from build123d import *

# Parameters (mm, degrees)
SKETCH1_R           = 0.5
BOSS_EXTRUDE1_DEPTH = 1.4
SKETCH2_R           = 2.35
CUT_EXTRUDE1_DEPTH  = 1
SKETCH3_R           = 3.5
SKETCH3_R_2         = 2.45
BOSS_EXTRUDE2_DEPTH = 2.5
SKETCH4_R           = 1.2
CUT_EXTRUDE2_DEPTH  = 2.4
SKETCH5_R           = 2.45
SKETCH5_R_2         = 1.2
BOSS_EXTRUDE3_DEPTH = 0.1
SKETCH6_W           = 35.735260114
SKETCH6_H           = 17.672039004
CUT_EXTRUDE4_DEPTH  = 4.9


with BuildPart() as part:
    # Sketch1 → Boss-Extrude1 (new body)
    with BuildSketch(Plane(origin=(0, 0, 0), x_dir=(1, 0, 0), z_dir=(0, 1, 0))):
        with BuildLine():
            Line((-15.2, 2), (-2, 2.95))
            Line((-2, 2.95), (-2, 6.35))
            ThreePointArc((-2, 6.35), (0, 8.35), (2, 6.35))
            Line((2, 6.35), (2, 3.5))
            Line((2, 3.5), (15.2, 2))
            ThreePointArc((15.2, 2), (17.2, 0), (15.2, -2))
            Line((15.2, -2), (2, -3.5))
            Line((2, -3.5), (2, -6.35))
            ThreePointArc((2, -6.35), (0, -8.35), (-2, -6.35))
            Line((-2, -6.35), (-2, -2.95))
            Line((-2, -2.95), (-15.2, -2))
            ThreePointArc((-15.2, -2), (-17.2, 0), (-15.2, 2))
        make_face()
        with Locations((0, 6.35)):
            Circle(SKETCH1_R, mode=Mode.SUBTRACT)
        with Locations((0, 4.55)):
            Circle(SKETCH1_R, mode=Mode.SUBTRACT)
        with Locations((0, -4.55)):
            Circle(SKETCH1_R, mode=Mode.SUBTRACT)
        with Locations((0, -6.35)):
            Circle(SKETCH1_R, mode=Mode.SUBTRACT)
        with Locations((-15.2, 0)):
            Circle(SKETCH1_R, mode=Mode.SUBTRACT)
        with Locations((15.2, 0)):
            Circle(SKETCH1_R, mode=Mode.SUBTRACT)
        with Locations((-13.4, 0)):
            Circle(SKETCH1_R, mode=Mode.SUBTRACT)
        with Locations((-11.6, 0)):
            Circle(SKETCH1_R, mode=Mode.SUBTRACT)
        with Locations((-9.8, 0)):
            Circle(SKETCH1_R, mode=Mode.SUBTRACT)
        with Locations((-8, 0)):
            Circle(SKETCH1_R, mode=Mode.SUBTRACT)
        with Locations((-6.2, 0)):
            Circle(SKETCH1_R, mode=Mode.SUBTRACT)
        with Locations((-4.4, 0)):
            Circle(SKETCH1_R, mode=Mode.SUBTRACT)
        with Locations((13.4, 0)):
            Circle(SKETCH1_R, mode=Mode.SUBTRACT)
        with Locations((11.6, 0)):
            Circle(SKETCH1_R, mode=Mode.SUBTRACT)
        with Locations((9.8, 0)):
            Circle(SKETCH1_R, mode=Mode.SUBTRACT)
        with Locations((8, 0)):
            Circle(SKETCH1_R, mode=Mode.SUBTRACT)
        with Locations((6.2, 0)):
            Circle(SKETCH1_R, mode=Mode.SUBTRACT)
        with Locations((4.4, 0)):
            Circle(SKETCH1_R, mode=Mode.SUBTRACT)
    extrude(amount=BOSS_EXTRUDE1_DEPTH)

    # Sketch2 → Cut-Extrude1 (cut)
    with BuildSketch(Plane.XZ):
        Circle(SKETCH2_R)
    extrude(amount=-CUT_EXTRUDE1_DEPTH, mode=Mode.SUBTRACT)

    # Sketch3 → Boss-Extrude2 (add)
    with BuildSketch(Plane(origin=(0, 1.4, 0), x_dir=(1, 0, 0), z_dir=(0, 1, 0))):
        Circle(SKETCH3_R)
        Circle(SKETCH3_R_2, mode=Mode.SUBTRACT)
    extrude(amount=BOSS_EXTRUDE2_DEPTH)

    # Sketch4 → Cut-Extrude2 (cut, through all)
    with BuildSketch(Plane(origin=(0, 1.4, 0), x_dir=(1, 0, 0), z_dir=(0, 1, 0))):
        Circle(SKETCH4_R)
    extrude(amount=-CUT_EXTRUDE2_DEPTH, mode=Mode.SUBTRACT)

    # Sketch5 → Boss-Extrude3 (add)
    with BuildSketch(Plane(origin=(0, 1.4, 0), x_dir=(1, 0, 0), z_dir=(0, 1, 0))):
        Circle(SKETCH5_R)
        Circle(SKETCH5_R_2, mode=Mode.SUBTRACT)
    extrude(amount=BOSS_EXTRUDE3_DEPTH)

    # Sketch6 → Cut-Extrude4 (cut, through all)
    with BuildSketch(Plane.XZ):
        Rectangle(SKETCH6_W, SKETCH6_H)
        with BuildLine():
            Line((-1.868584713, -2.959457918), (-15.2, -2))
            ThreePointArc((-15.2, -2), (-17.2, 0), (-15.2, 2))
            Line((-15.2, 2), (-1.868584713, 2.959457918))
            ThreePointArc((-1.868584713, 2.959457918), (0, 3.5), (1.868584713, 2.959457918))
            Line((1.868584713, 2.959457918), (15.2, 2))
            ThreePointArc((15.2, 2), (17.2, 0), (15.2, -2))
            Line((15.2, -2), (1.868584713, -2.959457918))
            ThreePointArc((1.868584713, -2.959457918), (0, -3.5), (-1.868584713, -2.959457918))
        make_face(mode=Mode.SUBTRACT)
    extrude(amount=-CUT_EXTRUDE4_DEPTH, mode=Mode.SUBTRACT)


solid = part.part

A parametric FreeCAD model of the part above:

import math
import FreeCAD as App
import Part
import Sketcher
from FreeCAD import Vector
Q = App.Units.Quantity


def add_polygon(sketch, points):
    """Adds a closed chain of lines whose ends are joined by coincident constraints."""
    first, n = sketch.GeometryCount, len(points)
    for a, b in zip(points, points[1:] + points[:1]):
        sketch.addGeometry(Part.LineSegment(App.Vector(*a, 0), App.Vector(*b, 0)), False)
    for i in range(n):
        sketch.addConstraint(Sketcher.Constraint("Coincident", first + i, 2, first + (i + 1) % n, 1))

doc = App.newDocument("Part")
body = doc.addObject("PartDesign::Body", "Body")

sketch1 = doc.addObject("Sketcher::SketchObject", "Sketch")
body.addObject(sketch1)
sketch1.AttachmentSupport = (doc.XZ_Plane, [""])
sketch1.MapMode = "FlatFace"
sketch1.addGeometry(Part.LineSegment(Vector(-2, -3, 0), Vector(-15.2, -2, 0)), False)
sketch1.addGeometry(Part.ArcOfCircle(Part.Circle(Vector(-15.2, 0, 0), Vector(0, 0, 1), 2), math.radians(90), math.radians(270)), False)
sketch1.addGeometry(Part.LineSegment(Vector(-15.2, 2, 0), Vector(-2, 3, 0)), False)
sketch1.addGeometry(Part.LineSegment(Vector(-2, 3, 0), Vector(-2, 6.3, 0)), False)
sketch1.addGeometry(Part.ArcOfCircle(Part.Circle(Vector(0, 6.3, 0), Vector(0, 0, 1), 2), math.radians(0), math.radians(180)), False)
sketch1.addGeometry(Part.LineSegment(Vector(2, 6.3, 0), Vector(2, 3.5, 0)), False)
sketch1.addGeometry(Part.LineSegment(Vector(2, 3.5, 0), Vector(15.2, 2, 0)), False)
sketch1.addGeometry(Part.ArcOfCircle(Part.Circle(Vector(15.2, 0, 0), Vector(0, 0, 1), 2), math.radians(-90), math.radians(90)), False)
sketch1.addGeometry(Part.LineSegment(Vector(15.2, -2, 0), Vector(2, -3.5, 0)), False)
sketch1.addGeometry(Part.LineSegment(Vector(2, -3.5, 0), Vector(2, -6.3, 0)), False)
sketch1.addGeometry(Part.ArcOfCircle(Part.Circle(Vector(0, -6.3, 0), Vector(0, 0, 1), 2), math.radians(180), math.radians(360)), False)
sketch1.addGeometry(Part.LineSegment(Vector(-2, -6.3, 0), Vector(-2, -3, 0)), False)
sketch1.addGeometry(Part.Circle(Vector(0, 6.3, 0), Vector(0, 0, 1), 0.5), False)
sketch1.addGeometry(Part.Circle(Vector(0, 4.5, 0), Vector(0, 0, 1), 0.5), False)
sketch1.addGeometry(Part.Circle(Vector(15.2, 0, 0), Vector(0, 0, 1), 0.5), False)
sketch1.addGeometry(Part.Circle(Vector(13.4, 0, 0), Vector(0, 0, 1), 0.5), False)
sketch1.addGeometry(Part.Circle(Vector(11.6, 0, 0), Vector(0, 0, 1), 0.5), False)
sketch1.addGeometry(Part.Circle(Vector(9.8, 0, 0), Vector(0, 0, 1), 0.5), False)
sketch1.addGeometry(Part.Circle(Vector(8, 0, 0), Vector(0, 0, 1), 0.5), False)
sketch1.addGeometry(Part.Circle(Vector(6.2, 0, 0), Vector(0, 0, 1), 0.5), False)
sketch1.addGeometry(Part.Circle(Vector(4.4, 0, 0), Vector(0, 0, 1), 0.5), False)
sketch1.addGeometry(Part.Circle(Vector(-4.4, 0, 0), Vector(0, 0, 1), 0.5), False)
sketch1.addGeometry(Part.Circle(Vector(-6.2, 0, 0), Vector(0, 0, 1), 0.5), False)
sketch1.addGeometry(Part.Circle(Vector(-8, 0, 0), Vector(0, 0, 1), 0.5), False)
sketch1.addGeometry(Part.Circle(Vector(-9.8, 0, 0), Vector(0, 0, 1), 0.5), False)
sketch1.addGeometry(Part.Circle(Vector(-11.6, 0, 0), Vector(0, 0, 1), 0.5), False)
sketch1.addGeometry(Part.Circle(Vector(-13.4, 0, 0), Vector(0, 0, 1), 0.5), False)
sketch1.addGeometry(Part.Circle(Vector(-15.2, 0, 0), Vector(0, 0, 1), 0.5), False)
sketch1.addGeometry(Part.Circle(Vector(0, -4.5, 0), Vector(0, 0, 1), 0.5), False)
sketch1.addGeometry(Part.Circle(Vector(0, -6.3, 0), Vector(0, 0, 1), 0.5), False)
sketch1.addConstraint(Sketcher.Constraint("Coincident", 0, 2, 1, 2))
sketch1.addConstraint(Sketcher.Constraint("Coincident", 1, 1, 2, 1))
sketch1.addConstraint(Sketcher.Constraint("Coincident", 2, 2, 3, 1))
sketch1.addConstraint(Sketcher.Constraint("Tangent", 3, 2, 4, 2))
sketch1.addConstraint(Sketcher.Constraint("Tangent", 4, 1, 5, 1))
sketch1.addConstraint(Sketcher.Constraint("Coincident", 5, 2, 6, 1))
sketch1.addConstraint(Sketcher.Constraint("Coincident", 6, 2, 7, 2))
sketch1.addConstraint(Sketcher.Constraint("Coincident", 7, 1, 8, 1))
sketch1.addConstraint(Sketcher.Constraint("Coincident", 8, 2, 9, 1))
sketch1.addConstraint(Sketcher.Constraint("Tangent", 9, 2, 10, 2))
sketch1.addConstraint(Sketcher.Constraint("Tangent", 10, 1, 11, 1))
sketch1.addConstraint(Sketcher.Constraint("Coincident", 11, 2, 0, 1))
sketch1.addConstraint(Sketcher.Constraint("Vertical", 3))
sketch1.addConstraint(Sketcher.Constraint("Vertical", 5))
sketch1.addConstraint(Sketcher.Constraint("Vertical", 9))
sketch1.addConstraint(Sketcher.Constraint("Vertical", 11))
sketch1.addConstraint(Sketcher.Constraint("Coincident", 12, 3, 4, 3))
sketch1.addConstraint(Sketcher.Constraint("Coincident", 14, 3, 7, 3))
sketch1.addConstraint(Sketcher.Constraint("Coincident", 27, 3, 1, 3))
sketch1.addConstraint(Sketcher.Constraint("Coincident", 29, 3, 10, 3))
sketch1.addConstraint(Sketcher.Constraint("Equal", 1, 4))
sketch1.addConstraint(Sketcher.Constraint("Equal", 4, 7))
sketch1.addConstraint(Sketcher.Constraint("Equal", 7, 10))
sketch1.addConstraint(Sketcher.Constraint("Equal", 12, 13))
sketch1.addConstraint(Sketcher.Constraint("Equal", 13, 14))
sketch1.addConstraint(Sketcher.Constraint("Equal", 14, 15))
sketch1.addConstraint(Sketcher.Constraint("Equal", 15, 16))
sketch1.addConstraint(Sketcher.Constraint("Equal", 16, 17))
sketch1.addConstraint(Sketcher.Constraint("Equal", 17, 18))
sketch1.addConstraint(Sketcher.Constraint("Equal", 18, 19))
sketch1.addConstraint(Sketcher.Constraint("Equal", 19, 20))
sketch1.addConstraint(Sketcher.Constraint("Equal", 20, 21))
sketch1.addConstraint(Sketcher.Constraint("Equal", 21, 22))
sketch1.addConstraint(Sketcher.Constraint("Equal", 22, 23))
sketch1.addConstraint(Sketcher.Constraint("Equal", 23, 24))
sketch1.addConstraint(Sketcher.Constraint("Equal", 24, 25))
sketch1.addConstraint(Sketcher.Constraint("Equal", 25, 26))
sketch1.addConstraint(Sketcher.Constraint("Equal", 26, 27))
sketch1.addConstraint(Sketcher.Constraint("Equal", 27, 28))
sketch1.addConstraint(Sketcher.Constraint("Equal", 28, 29))
sketch1.addConstraint(Sketcher.Constraint("Symmetric", 1, 3, 7, 3, -1, 1))
sketch1.addConstraint(Sketcher.Constraint("Symmetric", 4, 3, 10, 3, -1, 1))
sketch1.addConstraint(Sketcher.Constraint("Symmetric", 20, 3, 21, 3, -1, 1))
sketch1.addConstraint(Sketcher.Constraint("Symmetric", 19, 3, 22, 3, -1, 1))
sketch1.addConstraint(Sketcher.Constraint("Symmetric", 18, 3, 23, 3, -1, 1))
sketch1.addConstraint(Sketcher.Constraint("Symmetric", 17, 3, 24, 3, -1, 1))
sketch1.addConstraint(Sketcher.Constraint("Symmetric", 16, 3, 25, 3, -1, 1))
sketch1.addConstraint(Sketcher.Constraint("Symmetric", 15, 3, 26, 3, -1, 1))
sketch1.addConstraint(Sketcher.Constraint("Symmetric", 13, 3, 28, 3, -1, 1))
sketch1.addConstraint(Sketcher.Constraint("Symmetric", 1, 1, 6, 2, -2))
sketch1.addConstraint(Sketcher.Constraint("Symmetric", 5, 2, 8, 2, -1))
sketch1.addConstraint(Sketcher.Constraint("PointOnObject", 13, 3, -2))
sketch1.addConstraint(Sketcher.Constraint("PointOnObject", 15, 3, -1))
sketch1.addConstraint(Sketcher.Constraint("PointOnObject", 16, 3, -1))
sketch1.addConstraint(Sketcher.Constraint("PointOnObject", 17, 3, -1))
sketch1.addConstraint(Sketcher.Constraint("PointOnObject", 18, 3, -1))
sketch1.addConstraint(Sketcher.Constraint("PointOnObject", 19, 3, -1))
sketch1.addConstraint(Sketcher.Constraint("PointOnObject", 20, 3, -1))
sketch1.addConstraint(Sketcher.Constraint("Vertical", 27, 3, 0, 2))
sketch1.addConstraint(Sketcher.Constraint("Vertical", 0, 2, 1, 1))
sketch1.addConstraint(Sketcher.Constraint("Vertical", 6, 2, 7, 1))
sketch1.addConstraint(Sketcher.Constraint("Equal", 3, 11))
sketch1.addConstraint(Sketcher.Constraint("Diameter", 12, Q("1 mm")))
sketch1.addConstraint(Sketcher.Constraint("Radius", 1, Q("2 mm")))
sketch1.addConstraint(Sketcher.Constraint("DistanceY", 3, 1, 3, 2, Q("3.4 mm")))
sketch1.addConstraint(Sketcher.Constraint("DistanceX", -1, 1, 18, 3, Q("8 mm")))
sketch1.addConstraint(Sketcher.Constraint("DistanceY", 5, 2, 5, 1, Q("2.85 mm")))
sketch1.addConstraint(Sketcher.Constraint("DistanceX", 1, 3, -1, 1, Q("15.2 mm")))
sketch1.addConstraint(Sketcher.Constraint("DistanceX", -1, 1, 15, 3, Q("13.4 mm")))
sketch1.addConstraint(Sketcher.Constraint("DistanceX", -1, 1, 16, 3, Q("11.6 mm")))
sketch1.addConstraint(Sketcher.Constraint("DistanceX", -1, 1, 17, 3, Q("9.8 mm")))
sketch1.addConstraint(Sketcher.Constraint("DistanceX", -1, 1, 19, 3, Q("6.2 mm")))
sketch1.addConstraint(Sketcher.Constraint("DistanceX", -1, 1, 20, 3, Q("4.4 mm")))
sketch1.addConstraint(Sketcher.Constraint("DistanceY", -1, 1, 5, 2, Q("3.5 mm")))
sketch1.addConstraint(Sketcher.Constraint("DistanceY", 13, 3, 4, 3, Q("1.8 mm")))
pad1 = doc.addObject("PartDesign::Pad", "Pad")
body.addObject(pad1)
pad1.Profile = sketch1
pad1.Length = 1.4
pad1.Reversed = True

sketch2 = doc.addObject("Sketcher::SketchObject", "Sketch001")
body.addObject(sketch2)
sketch2.AttachmentSupport = (doc.XZ_Plane, [""])
sketch2.MapMode = "FlatFace"
sketch2.addGeometry(Part.Circle(Vector(0, 0, 0), Vector(0, 0, 1), 2.4), False)
sketch2.addConstraint(Sketcher.Constraint("Coincident", 0, 3, -1, 1))
sketch2.addConstraint(Sketcher.Constraint("Diameter", 0, Q("4.7 mm")))
pocket1 = doc.addObject("PartDesign::Pocket", "Pocket")
body.addObject(pocket1)
pocket1.Profile = sketch2
pocket1.Length = 1

sketch3 = doc.addObject("Sketcher::SketchObject", "Sketch002")
body.addObject(sketch3)
sketch3.AttachmentSupport = (doc.XZ_Plane, [""])
sketch3.MapMode = "FlatFace"
sketch3.AttachmentOffset = App.Placement(Vector(0, 0, -1.4), App.Rotation())
sketch3.addGeometry(Part.Circle(Vector(0, 0, 0), Vector(0, 0, 1), 3.5), False)
sketch3.addGeometry(Part.Circle(Vector(0, 0, 0), Vector(0, 0, 1), 2.5), False)
sketch3.addConstraint(Sketcher.Constraint("Coincident", 0, 3, -1, 1))
sketch3.addConstraint(Sketcher.Constraint("Coincident", 1, 3, -1, 1))
sketch3.addConstraint(Sketcher.Constraint("Diameter", 0, Q("7 mm")))
sketch3.addConstraint(Sketcher.Constraint("Diameter", 1, Q("4.9 mm")))
pad2 = doc.addObject("PartDesign::Pad", "Pad001")
body.addObject(pad2)
pad2.Profile = sketch3
pad2.Length = 2.5
pad2.Reversed = True

sketch4 = doc.addObject("Sketcher::SketchObject", "Sketch003")
body.addObject(sketch4)
sketch4.AttachmentSupport = (doc.XZ_Plane, [""])
sketch4.MapMode = "FlatFace"
sketch4.AttachmentOffset = App.Placement(Vector(0, 0, -1.4), App.Rotation())
sketch4.addGeometry(Part.Circle(Vector(0, 0, 0), Vector(0, 0, 1), 1.2), False)
sketch4.addConstraint(Sketcher.Constraint("Coincident", 0, 3, -1, 1))
sketch4.addConstraint(Sketcher.Constraint("Diameter", 0, Q("2.4 mm")))
pocket2 = doc.addObject("PartDesign::Pocket", "Pocket001")
body.addObject(pocket2)
pocket2.Profile = sketch4
pocket2.Type = "ThroughAll"
pocket2.Reversed = True

sketch5 = doc.addObject("Sketcher::SketchObject", "Sketch004")
body.addObject(sketch5)
sketch5.AttachmentSupport = (doc.XZ_Plane, [""])
sketch5.MapMode = "FlatFace"
sketch5.AttachmentOffset = App.Placement(Vector(0, 0, -1.4), App.Rotation())
sketch5.addGeometry(Part.Circle(Vector(0, 0, 0), Vector(0, 0, 1), 2.5), False)
sketch5.addGeometry(Part.Circle(Vector(0, 0, 0), Vector(0, 0, 1), 1.2), False)
sketch5.addConstraint(Sketcher.Constraint("Coincident", 0, 3, -1, 1))
sketch5.addConstraint(Sketcher.Constraint("Coincident", 1, 3, -1, 1))
sketch5.addConstraint(Sketcher.Constraint("Diameter", 0, Q("4.9 mm")))
sketch5.addConstraint(Sketcher.Constraint("Diameter", 1, Q("2.4 mm")))
pad3 = doc.addObject("PartDesign::Pad", "Pad002")
body.addObject(pad3)
pad3.Profile = sketch5
pad3.Length = 0.1
pad3.Reversed = True

sketch6 = doc.addObject("Sketcher::SketchObject", "Sketch005")
body.addObject(sketch6)
sketch6.AttachmentSupport = (doc.XZ_Plane, [""])
sketch6.MapMode = "FlatFace"
add_polygon(sketch6, [(-17.9, 8.8), (-17.9, -8.8), (17.9, -8.8), (17.9, 8.8)])
sketch6.addGeometry(Part.ArcOfCircle(Part.Circle(Vector(0, 0, 0), Vector(0, 0, 1), 3.5), math.radians(-122), math.radians(-58)), False)
sketch6.addGeometry(Part.LineSegment(Vector(-1.9, -3, 0), Vector(-15.2, -2, 0)), False)
sketch6.addGeometry(Part.ArcOfCircle(Part.Circle(Vector(-15.2, 0, 0), Vector(0, 0, 1), 2), math.radians(90), math.radians(270)), False)
sketch6.addGeometry(Part.LineSegment(Vector(-15.2, 2, 0), Vector(-1.9, 3, 0)), False)
sketch6.addGeometry(Part.ArcOfCircle(Part.Circle(Vector(0, 0, 0), Vector(0, 0, 1), 3.5), math.radians(58), math.radians(122)), False)
sketch6.addGeometry(Part.LineSegment(Vector(1.9, 3, 0), Vector(15.2, 2, 0)), False)
sketch6.addGeometry(Part.ArcOfCircle(Part.Circle(Vector(15.2, 0, 0), Vector(0, 0, 1), 2), math.radians(-90), math.radians(90)), False)
sketch6.addGeometry(Part.LineSegment(Vector(15.2, -2, 0), Vector(1.9, -3, 0)), False)
sketch6.addConstraint(Sketcher.Constraint("Coincident", 4, 1, 5, 1))
sketch6.addConstraint(Sketcher.Constraint("Coincident", 5, 2, 6, 2))
sketch6.addConstraint(Sketcher.Constraint("Coincident", 6, 1, 7, 1))
sketch6.addConstraint(Sketcher.Constraint("Coincident", 7, 2, 8, 2))
sketch6.addConstraint(Sketcher.Constraint("Coincident", 8, 1, 9, 1))
sketch6.addConstraint(Sketcher.Constraint("Coincident", 9, 2, 10, 2))
sketch6.addConstraint(Sketcher.Constraint("Coincident", 10, 1, 11, 1))
sketch6.addConstraint(Sketcher.Constraint("Coincident", 11, 2, 4, 2))
sketch6.addConstraint(Sketcher.Constraint("Vertical", 0))
sketch6.addConstraint(Sketcher.Constraint("Horizontal", 1))
sketch6.addConstraint(Sketcher.Constraint("Vertical", 2))
sketch6.addConstraint(Sketcher.Constraint("Horizontal", 3))
sketch6.addConstraint(Sketcher.Constraint("Coincident", 4, 3, -1, 1))
sketch6.addConstraint(Sketcher.Constraint("Coincident", 8, 3, -1, 1))
sketch6.addConstraint(Sketcher.Constraint("Equal", 4, 8))
sketch6.addConstraint(Sketcher.Constraint("Equal", 6, 10))
sketch6.addConstraint(Sketcher.Constraint("Symmetric", 6, 3, 10, 3, -1, 1))
sketch6.addConstraint(Sketcher.Constraint("Symmetric", 0, 2, 2, 2, -1, 1))
sketch6.addConstraint(Sketcher.Constraint("Symmetric", 6, 1, 9, 2, -2))
sketch6.addConstraint(Sketcher.Constraint("Parallel", 5, 9))
sketch6.addConstraint(Sketcher.Constraint("Parallel", 7, 11))
sketch6.addConstraint(Sketcher.Constraint("Horizontal", 7, 2, 8, 1))
sketch6.addConstraint(Sketcher.Constraint("Horizontal", 4, 1, 11, 2))
sketch6.addConstraint(Sketcher.Constraint("Vertical", 6, 3, 5, 2))
sketch6.addConstraint(Sketcher.Constraint("Vertical", 5, 2, 6, 1))
sketch6.addConstraint(Sketcher.Constraint("Radius", 6, Q("2 mm")))
sketch6.addConstraint(Sketcher.Constraint("Radius", 4, Q("3.5 mm")))
sketch6.addConstraint(Sketcher.Constraint("DistanceX", 6, 3, -1, 1, Q("15.2 mm")))
sketch6.addConstraint(Sketcher.Constraint("DistanceX", 1, 1, 1, 2, Q("35.73526 mm")))
sketch6.addConstraint(Sketcher.Constraint("DistanceY", 0, 2, 0, 1, Q("17.672039 mm")))
sketch6.addConstraint(Sketcher.Constraint("DistanceY", 0, 2, 4, 1, Q("5.876562 mm")))
pocket3 = doc.addObject("PartDesign::Pocket", "Pocket002")
body.addObject(pocket3)
pocket3.Profile = sketch6
pocket3.Type = "ThroughAll"

doc.recompute()
